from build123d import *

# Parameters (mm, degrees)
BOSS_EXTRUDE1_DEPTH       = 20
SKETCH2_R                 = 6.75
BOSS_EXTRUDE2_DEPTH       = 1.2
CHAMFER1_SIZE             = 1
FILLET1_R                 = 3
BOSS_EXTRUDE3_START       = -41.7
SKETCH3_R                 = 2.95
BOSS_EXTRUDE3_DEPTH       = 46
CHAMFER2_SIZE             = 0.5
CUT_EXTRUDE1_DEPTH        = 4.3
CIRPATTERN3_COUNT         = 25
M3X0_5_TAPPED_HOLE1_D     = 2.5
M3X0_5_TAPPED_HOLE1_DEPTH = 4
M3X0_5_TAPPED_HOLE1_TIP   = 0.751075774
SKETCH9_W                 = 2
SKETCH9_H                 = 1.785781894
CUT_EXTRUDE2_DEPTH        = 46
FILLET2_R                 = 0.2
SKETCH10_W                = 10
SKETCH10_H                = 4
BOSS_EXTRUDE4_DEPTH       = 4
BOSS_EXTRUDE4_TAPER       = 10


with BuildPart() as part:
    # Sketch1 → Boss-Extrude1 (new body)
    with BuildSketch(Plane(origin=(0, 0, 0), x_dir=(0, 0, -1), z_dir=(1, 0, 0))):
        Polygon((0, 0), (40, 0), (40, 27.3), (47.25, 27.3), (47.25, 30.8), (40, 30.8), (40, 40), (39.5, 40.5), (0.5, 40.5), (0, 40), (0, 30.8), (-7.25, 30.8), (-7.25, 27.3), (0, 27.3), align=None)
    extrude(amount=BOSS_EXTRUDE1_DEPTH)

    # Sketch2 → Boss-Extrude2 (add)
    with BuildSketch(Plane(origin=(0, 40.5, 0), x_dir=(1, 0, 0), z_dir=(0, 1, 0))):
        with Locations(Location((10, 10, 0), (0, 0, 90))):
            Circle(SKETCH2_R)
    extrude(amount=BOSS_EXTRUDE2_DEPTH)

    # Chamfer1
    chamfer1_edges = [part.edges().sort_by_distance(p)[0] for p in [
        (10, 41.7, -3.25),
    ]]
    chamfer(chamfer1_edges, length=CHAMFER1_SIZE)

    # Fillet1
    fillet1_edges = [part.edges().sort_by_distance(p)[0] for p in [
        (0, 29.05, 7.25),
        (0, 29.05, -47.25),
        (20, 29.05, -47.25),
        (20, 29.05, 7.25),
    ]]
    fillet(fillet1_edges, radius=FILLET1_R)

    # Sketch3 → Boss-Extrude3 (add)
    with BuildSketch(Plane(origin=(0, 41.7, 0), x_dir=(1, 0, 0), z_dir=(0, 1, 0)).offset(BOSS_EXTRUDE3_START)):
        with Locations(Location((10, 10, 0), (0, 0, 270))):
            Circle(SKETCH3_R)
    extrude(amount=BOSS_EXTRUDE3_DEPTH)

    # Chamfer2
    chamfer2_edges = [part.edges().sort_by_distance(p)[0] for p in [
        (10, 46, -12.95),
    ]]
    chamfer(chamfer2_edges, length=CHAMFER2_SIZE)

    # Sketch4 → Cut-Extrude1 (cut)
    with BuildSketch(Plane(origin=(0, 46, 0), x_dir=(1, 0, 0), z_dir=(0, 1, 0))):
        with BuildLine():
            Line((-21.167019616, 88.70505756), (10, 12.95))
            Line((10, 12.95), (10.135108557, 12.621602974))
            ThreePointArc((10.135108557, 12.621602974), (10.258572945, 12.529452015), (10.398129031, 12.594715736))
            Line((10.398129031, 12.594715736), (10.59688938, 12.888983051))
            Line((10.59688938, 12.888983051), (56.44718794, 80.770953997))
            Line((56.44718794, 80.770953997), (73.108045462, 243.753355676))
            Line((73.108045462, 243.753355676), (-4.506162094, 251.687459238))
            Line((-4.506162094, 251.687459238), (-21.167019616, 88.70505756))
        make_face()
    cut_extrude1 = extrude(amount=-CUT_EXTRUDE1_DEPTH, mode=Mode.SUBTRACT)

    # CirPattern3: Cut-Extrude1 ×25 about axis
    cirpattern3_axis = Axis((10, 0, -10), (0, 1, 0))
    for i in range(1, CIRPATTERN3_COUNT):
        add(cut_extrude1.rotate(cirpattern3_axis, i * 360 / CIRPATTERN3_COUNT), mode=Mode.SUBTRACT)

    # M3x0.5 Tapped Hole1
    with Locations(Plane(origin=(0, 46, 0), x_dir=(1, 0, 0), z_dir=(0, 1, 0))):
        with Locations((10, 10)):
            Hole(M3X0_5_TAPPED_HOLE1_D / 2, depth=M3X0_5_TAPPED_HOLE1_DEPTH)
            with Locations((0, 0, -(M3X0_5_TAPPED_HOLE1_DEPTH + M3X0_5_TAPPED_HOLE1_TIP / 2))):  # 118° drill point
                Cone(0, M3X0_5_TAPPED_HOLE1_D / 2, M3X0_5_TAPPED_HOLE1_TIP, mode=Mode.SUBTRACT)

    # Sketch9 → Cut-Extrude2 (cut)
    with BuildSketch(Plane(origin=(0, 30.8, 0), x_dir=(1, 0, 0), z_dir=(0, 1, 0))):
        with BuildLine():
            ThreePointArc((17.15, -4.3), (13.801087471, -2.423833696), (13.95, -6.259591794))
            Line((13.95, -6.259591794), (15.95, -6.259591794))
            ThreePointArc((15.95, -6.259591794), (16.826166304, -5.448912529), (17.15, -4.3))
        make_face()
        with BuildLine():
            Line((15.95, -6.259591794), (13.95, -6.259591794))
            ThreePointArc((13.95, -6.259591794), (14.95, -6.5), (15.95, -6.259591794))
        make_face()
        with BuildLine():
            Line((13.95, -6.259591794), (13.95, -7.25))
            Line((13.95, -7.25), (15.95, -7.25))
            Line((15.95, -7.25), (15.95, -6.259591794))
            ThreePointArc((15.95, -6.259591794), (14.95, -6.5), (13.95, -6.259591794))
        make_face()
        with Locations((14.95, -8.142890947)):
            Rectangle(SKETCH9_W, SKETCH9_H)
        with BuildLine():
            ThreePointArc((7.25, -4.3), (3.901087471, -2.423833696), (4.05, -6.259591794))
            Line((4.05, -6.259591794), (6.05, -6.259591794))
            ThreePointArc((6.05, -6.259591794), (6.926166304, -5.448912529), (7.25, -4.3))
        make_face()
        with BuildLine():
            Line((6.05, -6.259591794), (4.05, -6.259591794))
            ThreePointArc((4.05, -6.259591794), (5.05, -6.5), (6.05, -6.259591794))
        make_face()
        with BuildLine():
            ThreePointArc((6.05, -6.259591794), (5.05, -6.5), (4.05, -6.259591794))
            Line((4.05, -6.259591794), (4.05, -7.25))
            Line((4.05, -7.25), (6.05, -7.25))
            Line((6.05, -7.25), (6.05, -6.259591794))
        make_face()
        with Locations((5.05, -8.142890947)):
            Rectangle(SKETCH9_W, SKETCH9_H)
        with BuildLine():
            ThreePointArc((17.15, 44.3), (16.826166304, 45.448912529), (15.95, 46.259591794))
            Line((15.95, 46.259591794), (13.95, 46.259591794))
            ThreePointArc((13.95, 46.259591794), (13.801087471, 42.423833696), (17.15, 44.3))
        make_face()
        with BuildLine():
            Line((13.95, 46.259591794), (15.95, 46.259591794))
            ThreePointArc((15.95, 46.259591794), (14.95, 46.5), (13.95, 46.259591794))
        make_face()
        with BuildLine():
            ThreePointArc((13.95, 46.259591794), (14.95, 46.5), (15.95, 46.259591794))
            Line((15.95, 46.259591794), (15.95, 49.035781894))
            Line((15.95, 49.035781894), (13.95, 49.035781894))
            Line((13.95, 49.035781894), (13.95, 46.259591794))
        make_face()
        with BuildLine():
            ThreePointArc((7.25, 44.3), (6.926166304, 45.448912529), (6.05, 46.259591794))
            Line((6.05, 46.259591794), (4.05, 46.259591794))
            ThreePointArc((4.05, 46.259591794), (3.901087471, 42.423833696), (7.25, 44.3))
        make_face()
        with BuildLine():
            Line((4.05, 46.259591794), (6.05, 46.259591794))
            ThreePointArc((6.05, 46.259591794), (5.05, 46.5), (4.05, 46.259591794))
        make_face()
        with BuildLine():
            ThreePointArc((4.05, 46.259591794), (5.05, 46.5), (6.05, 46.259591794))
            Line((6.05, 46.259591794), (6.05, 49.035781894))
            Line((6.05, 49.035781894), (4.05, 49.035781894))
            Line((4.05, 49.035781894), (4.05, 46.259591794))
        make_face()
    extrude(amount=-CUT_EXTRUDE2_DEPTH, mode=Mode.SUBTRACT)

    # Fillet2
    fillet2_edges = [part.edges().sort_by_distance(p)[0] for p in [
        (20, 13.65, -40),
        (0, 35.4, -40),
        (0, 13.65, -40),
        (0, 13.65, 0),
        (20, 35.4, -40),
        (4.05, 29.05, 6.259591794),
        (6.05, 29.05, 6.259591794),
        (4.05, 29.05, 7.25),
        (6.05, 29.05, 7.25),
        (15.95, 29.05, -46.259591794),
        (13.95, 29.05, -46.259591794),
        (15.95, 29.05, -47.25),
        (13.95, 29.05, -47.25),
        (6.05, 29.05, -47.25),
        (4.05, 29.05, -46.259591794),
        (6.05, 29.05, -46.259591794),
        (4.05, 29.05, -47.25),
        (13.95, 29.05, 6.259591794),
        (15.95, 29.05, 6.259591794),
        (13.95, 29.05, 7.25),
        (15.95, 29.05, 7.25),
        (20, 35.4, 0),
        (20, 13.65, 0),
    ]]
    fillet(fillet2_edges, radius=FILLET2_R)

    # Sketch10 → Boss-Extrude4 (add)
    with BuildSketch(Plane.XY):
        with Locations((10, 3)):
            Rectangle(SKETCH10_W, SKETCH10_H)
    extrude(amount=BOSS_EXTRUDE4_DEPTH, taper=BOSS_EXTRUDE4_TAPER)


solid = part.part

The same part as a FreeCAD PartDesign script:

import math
import FreeCAD as App
import Part
import Sketcher

V = App.Vector


def edges_at(feature, points):
    """Names of the edges that pass closest to the given points."""
    edges = feature.Shape.Edges
    near = lambda p: min(range(len(edges)), key=lambda i: edges[i].distToShape(Part.Vertex(*p))[0])
    return sorted({f"Edge{near(p) + 1}" for p in points})


def add_polygon(sketch, points):
    """Adds a closed chain of lines whose ends are joined by coincident constraints."""
    first, n = sketch.GeometryCount, len(points)
    for a, b in zip(points, points[1:] + points[:1]):
        sketch.addGeometry(Part.LineSegment(App.Vector(*a, 0), App.Vector(*b, 0)), False)
    for i in range(n):
        sketch.addConstraint(Sketcher.Constraint("Coincident", first + i, 2, first + (i + 1) % n, 1))

doc = App.newDocument("Part")
body = doc.addObject("PartDesign::Body", "Body")

sketch1 = doc.addObject("Sketcher::SketchObject", "Sketch")
body.addObject(sketch1)
sketch1.AttachmentSupport = (doc.YZ_Plane, [""])
sketch1.MapMode = "FlatFace"
add_polygon(sketch1, [(0, 0), (0, -40), (27.3, -40), (27.3, -47.2), (30.8, -47.2), (30.8, -40), (40, -40), (40.5, -39.5), (40.5, -0.5), (40, 0), (30.8, 0), (30.8, 7.2), (27.3, 7.2), (27.3, 0)])
sketch1.addConstraint(Sketcher.Constraint("Vertical", 0))
sketch1.addConstraint(Sketcher.Constraint("Horizontal", 1))
sketch1.addConstraint(Sketcher.Constraint("Vertical", 2))
sketch1.addConstraint(Sketcher.Constraint("Horizontal", 3))
sketch1.addConstraint(Sketcher.Constraint("Vertical", 4))
sketch1.addConstraint(Sketcher.Constraint("Horizontal", 5))
sketch1.addConstraint(Sketcher.Constraint("Vertical", 7))
sketch1.addConstraint(Sketcher.Constraint("Horizontal", 9))
sketch1.addConstraint(Sketcher.Constraint("Vertical", 10))
sketch1.addConstraint(Sketcher.Constraint("Horizontal", 11))
sketch1.addConstraint(Sketcher.Constraint("Vertical", 12))
sketch1.addConstraint(Sketcher.Constraint("Horizontal", 13))
sketch1.addConstraint(Sketcher.Constraint("Coincident", 13, 2, -1, 1))
sketch1.addConstraint(Sketcher.Constraint("PointOnObject", 8, 2, -1))
sketch1.addConstraint(Sketcher.Constraint("Perpendicular", 6, 8))
sketch1.addConstraint(Sketcher.Constraint("Horizontal", 1, 2, 4, 2))
sketch1.addConstraint(Sketcher.Constraint("Vertical", 5, 2, 8, 2))
sketch1.addConstraint(Sketcher.Constraint("Vertical", 4, 2, 9, 2))
sketch1.addConstraint(Sketcher.Constraint("Vertical", 2, 2, 11, 2))
sketch1.addConstraint(Sketcher.Constraint("Equal", 4, 10))
sketch1.addConstraint(Sketcher.Constraint("Equal", 6, 8))
sketch1.addConstraint(Sketcher.Constraint("DistanceY", 0, 2, 0, 1, 40.0))
sketch1.addConstraint(Sketcher.Constraint("DistanceY", 7, 1, 7, 2, 39.0))
sketch1.addConstraint(Sketcher.Constraint("DistanceX", 1, 1, 1, 2, 27.3))
sketch1.addConstraint(Sketcher.Constraint("DistanceX", 3, 1, 3, 2, 3.5))
sketch1.addConstraint(Sketcher.Constraint("DistanceX", 5, 1, 5, 2, 9.2))
sketch1.addConstraint(Sketcher.Constraint("DistanceY", 2, 2, 2, 1, 7.25))
pad1 = doc.addObject("PartDesign::Pad", "Pad")
body.addObject(pad1)
pad1.Profile = sketch1
pad1.Length = 20

sketch2 = doc.addObject("Sketcher::SketchObject", "Sketch001")
body.addObject(sketch2)
sketch2.AttachmentSupport = (doc.XZ_Plane, [""])
sketch2.MapMode = "FlatFace"
sketch2.AttachmentOffset = App.Placement(V(0, 0, -40.5), App.Rotation())
sketch2.addGeometry(Part.Circle(V(10, -10, 0), V(0, 0, 1), 7), False)
sketch2.addConstraint(Sketcher.Constraint("Diameter", 0, 13.5))
sketch2.addConstraint(Sketcher.Constraint("DistanceX", -1, 1, 0, 3, 10.0))
sketch2.addConstraint(Sketcher.Constraint("DistanceY", 0, 3, -1, 1, 10.0))
pad2 = doc.addObject("PartDesign::Pad", "Pad001")
body.addObject(pad2)
pad2.Profile = sketch2
pad2.Length = 1.2
pad2.Reversed = True
doc.recompute()

chamfer = doc.addObject("PartDesign::Chamfer", "Chamfer")
body.addObject(chamfer)
chamfer.Base = (pad2, edges_at(pad2, [(10, 41.7, -3.25)]))
chamfer.Size = 1
doc.recompute()

fillet = doc.addObject("PartDesign::Fillet", "Fillet")
body.addObject(fillet)
fillet.Base = (chamfer, edges_at(chamfer, [
    (0, 29.05, 7.25),
    (0, 29.05, -47.25),
    (20, 29.05, -47.25),
    (20, 29.05, 7.25),
]))
fillet.Radius = 3

sketch3 = doc.addObject("Sketcher::SketchObject", "Sketch002")
body.addObject(sketch3)
sketch3.AttachmentSupport = (doc.XZ_Plane, [""])
sketch3.MapMode = "FlatFace"
sketch3.addGeometry(Part.Circle(V(10, -10, 0), V(0, 0, 1), 3), False)
sketch3.addConstraint(Sketcher.Constraint("Diameter", 0, 5.9))
sketch3.addConstraint(Sketcher.Constraint("DistanceX", -1, 1, 0, 3, 10.0))
sketch3.addConstraint(Sketcher.Constraint("DistanceY", 0, 3, -1, 1, 10.0))
pad3 = doc.addObject("PartDesign::Pad", "Pad002")
body.addObject(pad3)
pad3.Profile = sketch3
pad3.Length = 46
pad3.Reversed = True
doc.recompute()

chamfer2 = doc.addObject("PartDesign::Chamfer", "Chamfer001")
body.addObject(chamfer2)
chamfer2.Base = (pad3, edges_at(pad3, [(10, 46, -12.95)]))
chamfer2.Size = 0.5

sketch4 = doc.addObject("Sketcher::SketchObject", "Sketch003")
body.addObject(sketch4)
sketch4.AttachmentSupport = (doc.XZ_Plane, [""])
sketch4.MapMode = "FlatFace"
sketch4.AttachmentOffset = App.Placement(V(0, 0, -46), App.Rotation())
sketch4.addGeometry(Part.LineSegment(V(-21.17, -88.71, 0), V(10, -12.95, 0)), False)
sketch4.addGeometry(Part.LineSegment(V(10, -12.95, 0), V(10.14, -12.62, 0)), False)
sketch4.addGeometry(Part.ArcOfCircle(Part.Circle(V(10.27, -12.68, 0), V(0, 0, 1), 0.15), math.radians(34), math.radians(158)), False)
sketch4.addGeometry(Part.LineSegment(V(10.4, -12.59, 0), V(10.6, -12.89, 0)), False)
sketch4.addGeometry(Part.LineSegment(V(10.6, -12.89, 0), V(56.45, -80.77, 0)), False)
sketch4.addGeometry(Part.LineSegment(V(56.45, -80.77, 0), V(73.11, -243.75, 0)), False)
sketch4.addGeometry(Part.LineSegment(V(73.11, -243.75, 0), V(-4.51, -251.69, 0)), False)
sketch4.addGeometry(Part.LineSegment(V(-4.51, -251.69, 0), V(-21.17, -88.71, 0)), False)
sketch4.addConstraint(Sketcher.Constraint("Coincident", 0, 2, 1, 1))
sketch4.addConstraint(Sketcher.Constraint("Tangent", 1, 2, 2, 2))
sketch4.addConstraint(Sketcher.Constraint("Tangent", 2, 1, 3, 1))
sketch4.addConstraint(Sketcher.Constraint("Coincident", 3, 2, 4, 1))
sketch4.addConstraint(Sketcher.Constraint("Coincident", 4, 2, 5, 1))
sketch4.addConstraint(Sketcher.Constraint("Coincident", 5, 2, 6, 1))
sketch4.addConstraint(Sketcher.Constraint("Coincident", 6, 2, 7, 1))
sketch4.addConstraint(Sketcher.Constraint("Coincident", 7, 2, 0, 1))
sketch4.addConstraint(Sketcher.Constraint("Parallel", 0, 1))
sketch4.addConstraint(Sketcher.Constraint("Parallel", 3, 4))
sketch4.addConstraint(Sketcher.Constraint("Perpendicular", 5, 6))
sketch4.addConstraint(Sketcher.Constraint("Perpendicular", 6, 7))
sketch4.addConstraint(Sketcher.Constraint("Equal", 1, 3))
sketch4.addConstraint(Sketcher.Constraint("Equal", 0, 4))
sketch4.addConstraint(Sketcher.Constraint("Equal", 5, 7))
sketch4.addConstraint(Sketcher.Constraint("Radius", 2, 0.15))
sketch4.addConstraint(Sketcher.Constraint("DistanceX", -1, 1, 0, 2, 10.0))
sketch4.addConstraint(Sketcher.Constraint("DistanceY", 0, 2, -1, 1, 12.95))
sketch4.addConstraint(Sketcher.Constraint("DistanceX", 3, 2, 4, 2, 45.850299))
sketch4.addConstraint(Sketcher.Constraint("DistanceY", 5, 2, 4, 2, 162.982402))
sketch4.addConstraint(Sketcher.Constraint("DistanceX", -1, 1, 1, 2, 10.135109))
sketch4.addConstraint(Sketcher.Constraint("DistanceY", 6, 2, -1, 1, 251.687459))
sketch4.addConstraint(Sketcher.Constraint("DistanceX", 7, 2, -1, 1, 21.16702))
pocket1 = doc.addObject("PartDesign::Pocket", "Pocket")
body.addObject(pocket1)
pocket1.Profile = sketch4
pocket1.Length = 4.3
pocket1.Reversed = True
doc.recompute()

datumline = doc.addObject("PartDesign::Line", "DatumLine")
body.addObject(datumline)
datumline.Placement = App.Placement(V(10, 0, -10), App.Rotation(V(0, 0, 1), V(0, 1, 0)))
polarpattern = doc.addObject("PartDesign::PolarPattern", "PolarPattern")
body.addObject(polarpattern)
polarpattern.Originals = [pocket1]
polarpattern.Axis = (datumline, [""])
polarpattern.Angle = 360
polarpattern.Occurrences = 25
body.Tip = polarpattern

sketch5 = doc.addObject("Sketcher::SketchObject", "Sketch004")
body.addObject(sketch5)
sketch5.AttachmentSupport = (doc.XZ_Plane, [""])
sketch5.MapMode = "FlatFace"
sketch5.AttachmentOffset = App.Placement(V(0, 0, -46), App.Rotation())
sketch5.addGeometry(Part.Circle(V(10, -10, 0), V(0, 0, 1), 1.2), False)
sketch5.addConstraint(Sketcher.Constraint("Diameter", 0, 2.5))
sketch5.addConstraint(Sketcher.Constraint("DistanceX", -1, 1, 0, 3, 10.0))
sketch5.addConstraint(Sketcher.Constraint("DistanceY", 0, 3, -1, 1, 10.0))
doc.recompute()
hole = doc.addObject("PartDesign::Hole", "Hole")
body.addObject(hole)
hole.Profile = sketch5
hole.ThreadType = "None"
hole.Diameter = 2.5
hole.DepthType = "Dimension"
hole.Depth = 4
hole.DrillPoint = "Angled"
hole.DrillPointAngle = 118
hole.Reversed = True

sketch6 = doc.addObject("Sketcher::SketchObject", "Sketch005")
body.addObject(sketch6)
sketch6.AttachmentSupport = (doc.XZ_Plane, [""])
sketch6.MapMode = "FlatFace"
sketch6.AttachmentOffset = App.Placement(V(0, 0, -30.8), App.Rotation())
sketch6.addGeometry(Part.ArcOfCircle(Part.Circle(V(14.9, 4.3, 0), V(0, 0, 1), 2.2), math.radians(117), math.radians(360)), False)
sketch6.addGeometry(Part.LineSegment(V(13.9, 6.3, 0), V(13.9, 9, 0)), False)
sketch6.addGeometry(Part.LineSegment(V(13.9, 9, 0), V(15.9, 9, 0)), False)
sketch6.addGeometry(Part.LineSegment(V(15.9, 9, 0), V(15.9, 6.3, 0)), False)
sketch6.addGeometry(Part.ArcOfCircle(Part.Circle(V(14.9, 4.3, 0), V(0, 0, 1), 2.2), math.radians(0), math.radians(63)), False)
sketch6.addGeometry(Part.ArcOfCircle(Part.Circle(V(5, 4.3, 0), V(0, 0, 1), 2.2), math.radians(117), math.radians(360)), False)
sketch6.addGeometry(Part.LineSegment(V(4, 6.3, 0), V(4, 9, 0)), False)
sketch6.addGeometry(Part.LineSegment(V(4, 9, 0), V(6, 9, 0)), False)
sketch6.addGeometry(Part.LineSegment(V(6, 9, 0), V(6, 6.3, 0)), False)
sketch6.addGeometry(Part.ArcOfCircle(Part.Circle(V(5, 4.3, 0), V(0, 0, 1), 2.2), math.radians(0), math.radians(63)), False)
sketch6.addGeometry(Part.ArcOfCircle(Part.Circle(V(14.9, -44.3, 0), V(0, 0, 1), 2.2), math.radians(-63), math.radians(0)), False)
sketch6.addGeometry(Part.LineSegment(V(15.9, -46.3, 0), V(15.9, -49, 0)), False)
sketch6.addGeometry(Part.LineSegment(V(15.9, -49, 0), V(13.9, -49, 0)), False)
sketch6.addGeometry(Part.LineSegment(V(13.9, -49, 0), V(13.9, -46.3, 0)), False)
sketch6.addGeometry(Part.ArcOfCircle(Part.Circle(V(14.9, -44.3, 0), V(0, 0, 1), 2.2), math.radians(0), math.radians(243)), False)
sketch6.addGeometry(Part.ArcOfCircle(Part.Circle(V(5, -44.3, 0), V(0, 0, 1), 2.2), math.radians(-63), math.radians(0)), False)
sketch6.addGeometry(Part.LineSegment(V(6, -46.3, 0), V(6, -49, 0)), False)
sketch6.addGeometry(Part.LineSegment(V(6, -49, 0), V(4, -49, 0)), False)
sketch6.addGeometry(Part.LineSegment(V(4, -49, 0), V(4, -46.3, 0)), False)
sketch6.addGeometry(Part.ArcOfCircle(Part.Circle(V(5, -44.3, 0), V(0, 0, 1), 2.2), math.radians(0), math.radians(243)), False)
sketch6.addConstraint(Sketcher.Constraint("Coincident", 0, 1, 1, 1))
sketch6.addConstraint(Sketcher.Constraint("Coincident", 1, 2, 2, 1))
sketch6.addConstraint(Sketcher.Constraint("Coincident", 2, 2, 3, 1))
sketch6.addConstraint(Sketcher.Constraint("Coincident", 3, 2, 4, 2))
sketch6.addConstraint(Sketcher.Constraint("Tangent", 4, 1, 0, 2))
sketch6.addConstraint(Sketcher.Constraint("Coincident", 5, 1, 6, 1))
sketch6.addConstraint(Sketcher.Constraint("Coincident", 6, 2, 7, 1))
sketch6.addConstraint(Sketcher.Constraint("Coincident", 7, 2, 8, 1))
sketch6.addConstraint(Sketcher.Constraint("Coincident", 8, 2, 9, 2))
sketch6.addConstraint(Sketcher.Constraint("Tangent", 9, 1, 5, 2))
sketch6.addConstraint(Sketcher.Constraint("Coincident", 10, 1, 11, 1))
sketch6.addConstraint(Sketcher.Constraint("Coincident", 11, 2, 12, 1))
sketch6.addConstraint(Sketcher.Constraint("Coincident", 12, 2, 13, 1))
sketch6.addConstraint(Sketcher.Constraint("Coincident", 13, 2, 14, 2))
sketch6.addConstraint(Sketcher.Constraint("Tangent", 14, 1, 10, 2))
sketch6.addConstraint(Sketcher.Constraint("Coincident", 15, 1, 16, 1))
sketch6.addConstraint(Sketcher.Constraint("Coincident", 16, 2, 17, 1))
sketch6.addConstraint(Sketcher.Constraint("Coincident", 17, 2, 18, 1))
sketch6.addConstraint(Sketcher.Constraint("Coincident", 18, 2, 19, 2))
sketch6.addConstraint(Sketcher.Constraint("Tangent", 19, 1, 15, 2))
sketch6.addConstraint(Sketcher.Constraint("Vertical", 1))
sketch6.addConstraint(Sketcher.Constraint("Horizontal", 2))
sketch6.addConstraint(Sketcher.Constraint("Vertical", 3))
sketch6.addConstraint(Sketcher.Constraint("Vertical", 6))
sketch6.addConstraint(Sketcher.Constraint("Horizontal", 7))
sketch6.addConstraint(Sketcher.Constraint("Vertical", 8))
sketch6.addConstraint(Sketcher.Constraint("Vertical", 11))
sketch6.addConstraint(Sketcher.Constraint("Horizontal", 12))
sketch6.addConstraint(Sketcher.Constraint("Vertical", 13))
sketch6.addConstraint(Sketcher.Constraint("Vertical", 16))
sketch6.addConstraint(Sketcher.Constraint("Horizontal", 17))
sketch6.addConstraint(Sketcher.Constraint("Vertical", 18))
sketch6.addConstraint(Sketcher.Constraint("Equal", 0, 4))
sketch6.addConstraint(Sketcher.Constraint("Equal", 4, 5))
sketch6.addConstraint(Sketcher.Constraint("Equal", 5, 9))
sketch6.addConstraint(Sketcher.Constraint("Equal", 9, 10))
sketch6.addConstraint(Sketcher.Constraint("Equal", 10, 14))
sketch6.addConstraint(Sketcher.Constraint("Equal", 14, 15))
sketch6.addConstraint(Sketcher.Constraint("Equal", 15, 19))
sketch6.addConstraint(Sketcher.Constraint("Horizontal", 4, 3, 5, 3))
sketch6.addConstraint(Sketcher.Constraint("Horizontal", 14, 3, 15, 3))
sketch6.addConstraint(Sketcher.Constraint("Horizontal", 0, 1, 3, 2))
sketch6.addConstraint(Sketcher.Constraint("Horizontal", 9, 3, 4, 1))
sketch6.addConstraint(Sketcher.Constraint("Horizontal", 3, 2, 5, 1))
sketch6.addConstraint(Sketcher.Constraint("Horizontal", 2, 2, 6, 2))
sketch6.addConstraint(Sketcher.Constraint("Horizontal", 5, 1, 8, 2))
sketch6.addConstraint(Sketcher.Constraint("Horizontal", 4, 1, 9, 1))
sketch6.addConstraint(Sketcher.Constraint("Horizontal", 10, 1, 13, 2))
sketch6.addConstraint(Sketcher.Constraint("Horizontal", 19, 3, 14, 1))
sketch6.addConstraint(Sketcher.Constraint("Horizontal", 13, 2, 15, 1))
sketch6.addConstraint(Sketcher.Constraint("Horizontal", 12, 2, 16, 2))
sketch6.addConstraint(Sketcher.Constraint("Horizontal", 15, 1, 18, 2))
sketch6.addConstraint(Sketcher.Constraint("Horizontal", 14, 1, 19, 1))
sketch6.addConstraint(Sketcher.Constraint("Vertical", 4, 3, 10, 3))
sketch6.addConstraint(Sketcher.Constraint("Vertical", 9, 3, 15, 3))
sketch6.addConstraint(Sketcher.Constraint("Vertical", 3, 2, 10, 1))
sketch6.addConstraint(Sketcher.Constraint("Equal", 8, 11))
sketch6.addConstraint(Sketcher.Constraint("Radius", 0, 2.2))
sketch6.addConstraint(Sketcher.Constraint("DistanceX", 2, 1, 2, 2, 2.0))
sketch6.addConstraint(Sketcher.Constraint("DistanceY", -1, 1, 0, 3, 4.3))
sketch6.addConstraint(Sketcher.Constraint("DistanceY", 10, 3, -1, 1, 44.3))
sketch6.addConstraint(Sketcher.Constraint("DistanceX", 5, 3, 0, 3, 9.9))
sketch6.addConstraint(Sketcher.Constraint("DistanceX", -1, 1, 0, 3, 14.95))
sketch6.addConstraint(Sketcher.Constraint("DistanceY", 1, 1, 1, 2, 2.77619))
pocket2 = doc.addObject("PartDesign::Pocket", "Pocket001")
body.addObject(pocket2)
pocket2.Profile = sketch6
pocket2.Length = 46
pocket2.Reversed = True
doc.recompute()

fillet2 = doc.addObject("PartDesign::Fillet", "Fillet001")
body.addObject(fillet2)
fillet2.Base = (pocket2, edges_at(pocket2, [
    (20, 13.65, -40),
    (0, 35.4, -40),
    (0, 13.65, -40),
    (0, 13.65, 0),
    (20, 35.4, -40),
    (4.05, 29.05, 6.26),
    (6.05, 29.05, 6.26),
    (4.05, 29.05, 7.25),
    (6.05, 29.05, 7.25),
    (15.95, 29.05, -46.26),
    (13.95, 29.05, -46.26),
    (15.95, 29.05, -47.25),
    (13.95, 29.05, -47.25),
    (6.05, 29.05, -47.25),
    (4.05, 29.05, -46.26),
    (6.05, 29.05, -46.26),
    (4.05, 29.05, -47.25),
    (13.95, 29.05, 6.26),
    (15.95, 29.05, 6.26),
    (13.95, 29.05, 7.25),
    (15.95, 29.05, 7.25),
    (20, 35.4, 0),
    (20, 13.65, 0),
]))
fillet2.Radius = 0.2

sketch7 = doc.addObject("Sketcher::SketchObject", "Sketch006")
body.addObject(sketch7)
sketch7.AttachmentSupport = (doc.XY_Plane, [""])
sketch7.MapMode = "FlatFace"
add_polygon(sketch7, [(5, 5), (5, 1), (15, 1), (15, 5)])
sketch7.addConstraint(Sketcher.Constraint("Vertical", 0))
sketch7.addConstraint(Sketcher.Constraint("Horizontal", 1))
sketch7.addConstraint(Sketcher.Constraint("Vertical", 2))
sketch7.addConstraint(Sketcher.Constraint("Horizontal", 3))
sketch7.addConstraint(Sketcher.Constraint("DistanceX", 1, 1, 1, 2, 10.0))
sketch7.addConstraint(Sketcher.Constraint("DistanceY", 0, 2, 0, 1, 4.0))
sketch7.addConstraint(Sketcher.Constraint("DistanceX", -1, 1, 0, 2, 5.0))
sketch7.addConstraint(Sketcher.Constraint("DistanceY", -1, 1, 0, 2, 1.0))
pad4 = doc.addObject("PartDesign::Pad", "Pad003")
body.addObject(pad4)
pad4.Profile = sketch7
pad4.Length = 4
pad4.TaperAngle = -10

doc.recompute()
